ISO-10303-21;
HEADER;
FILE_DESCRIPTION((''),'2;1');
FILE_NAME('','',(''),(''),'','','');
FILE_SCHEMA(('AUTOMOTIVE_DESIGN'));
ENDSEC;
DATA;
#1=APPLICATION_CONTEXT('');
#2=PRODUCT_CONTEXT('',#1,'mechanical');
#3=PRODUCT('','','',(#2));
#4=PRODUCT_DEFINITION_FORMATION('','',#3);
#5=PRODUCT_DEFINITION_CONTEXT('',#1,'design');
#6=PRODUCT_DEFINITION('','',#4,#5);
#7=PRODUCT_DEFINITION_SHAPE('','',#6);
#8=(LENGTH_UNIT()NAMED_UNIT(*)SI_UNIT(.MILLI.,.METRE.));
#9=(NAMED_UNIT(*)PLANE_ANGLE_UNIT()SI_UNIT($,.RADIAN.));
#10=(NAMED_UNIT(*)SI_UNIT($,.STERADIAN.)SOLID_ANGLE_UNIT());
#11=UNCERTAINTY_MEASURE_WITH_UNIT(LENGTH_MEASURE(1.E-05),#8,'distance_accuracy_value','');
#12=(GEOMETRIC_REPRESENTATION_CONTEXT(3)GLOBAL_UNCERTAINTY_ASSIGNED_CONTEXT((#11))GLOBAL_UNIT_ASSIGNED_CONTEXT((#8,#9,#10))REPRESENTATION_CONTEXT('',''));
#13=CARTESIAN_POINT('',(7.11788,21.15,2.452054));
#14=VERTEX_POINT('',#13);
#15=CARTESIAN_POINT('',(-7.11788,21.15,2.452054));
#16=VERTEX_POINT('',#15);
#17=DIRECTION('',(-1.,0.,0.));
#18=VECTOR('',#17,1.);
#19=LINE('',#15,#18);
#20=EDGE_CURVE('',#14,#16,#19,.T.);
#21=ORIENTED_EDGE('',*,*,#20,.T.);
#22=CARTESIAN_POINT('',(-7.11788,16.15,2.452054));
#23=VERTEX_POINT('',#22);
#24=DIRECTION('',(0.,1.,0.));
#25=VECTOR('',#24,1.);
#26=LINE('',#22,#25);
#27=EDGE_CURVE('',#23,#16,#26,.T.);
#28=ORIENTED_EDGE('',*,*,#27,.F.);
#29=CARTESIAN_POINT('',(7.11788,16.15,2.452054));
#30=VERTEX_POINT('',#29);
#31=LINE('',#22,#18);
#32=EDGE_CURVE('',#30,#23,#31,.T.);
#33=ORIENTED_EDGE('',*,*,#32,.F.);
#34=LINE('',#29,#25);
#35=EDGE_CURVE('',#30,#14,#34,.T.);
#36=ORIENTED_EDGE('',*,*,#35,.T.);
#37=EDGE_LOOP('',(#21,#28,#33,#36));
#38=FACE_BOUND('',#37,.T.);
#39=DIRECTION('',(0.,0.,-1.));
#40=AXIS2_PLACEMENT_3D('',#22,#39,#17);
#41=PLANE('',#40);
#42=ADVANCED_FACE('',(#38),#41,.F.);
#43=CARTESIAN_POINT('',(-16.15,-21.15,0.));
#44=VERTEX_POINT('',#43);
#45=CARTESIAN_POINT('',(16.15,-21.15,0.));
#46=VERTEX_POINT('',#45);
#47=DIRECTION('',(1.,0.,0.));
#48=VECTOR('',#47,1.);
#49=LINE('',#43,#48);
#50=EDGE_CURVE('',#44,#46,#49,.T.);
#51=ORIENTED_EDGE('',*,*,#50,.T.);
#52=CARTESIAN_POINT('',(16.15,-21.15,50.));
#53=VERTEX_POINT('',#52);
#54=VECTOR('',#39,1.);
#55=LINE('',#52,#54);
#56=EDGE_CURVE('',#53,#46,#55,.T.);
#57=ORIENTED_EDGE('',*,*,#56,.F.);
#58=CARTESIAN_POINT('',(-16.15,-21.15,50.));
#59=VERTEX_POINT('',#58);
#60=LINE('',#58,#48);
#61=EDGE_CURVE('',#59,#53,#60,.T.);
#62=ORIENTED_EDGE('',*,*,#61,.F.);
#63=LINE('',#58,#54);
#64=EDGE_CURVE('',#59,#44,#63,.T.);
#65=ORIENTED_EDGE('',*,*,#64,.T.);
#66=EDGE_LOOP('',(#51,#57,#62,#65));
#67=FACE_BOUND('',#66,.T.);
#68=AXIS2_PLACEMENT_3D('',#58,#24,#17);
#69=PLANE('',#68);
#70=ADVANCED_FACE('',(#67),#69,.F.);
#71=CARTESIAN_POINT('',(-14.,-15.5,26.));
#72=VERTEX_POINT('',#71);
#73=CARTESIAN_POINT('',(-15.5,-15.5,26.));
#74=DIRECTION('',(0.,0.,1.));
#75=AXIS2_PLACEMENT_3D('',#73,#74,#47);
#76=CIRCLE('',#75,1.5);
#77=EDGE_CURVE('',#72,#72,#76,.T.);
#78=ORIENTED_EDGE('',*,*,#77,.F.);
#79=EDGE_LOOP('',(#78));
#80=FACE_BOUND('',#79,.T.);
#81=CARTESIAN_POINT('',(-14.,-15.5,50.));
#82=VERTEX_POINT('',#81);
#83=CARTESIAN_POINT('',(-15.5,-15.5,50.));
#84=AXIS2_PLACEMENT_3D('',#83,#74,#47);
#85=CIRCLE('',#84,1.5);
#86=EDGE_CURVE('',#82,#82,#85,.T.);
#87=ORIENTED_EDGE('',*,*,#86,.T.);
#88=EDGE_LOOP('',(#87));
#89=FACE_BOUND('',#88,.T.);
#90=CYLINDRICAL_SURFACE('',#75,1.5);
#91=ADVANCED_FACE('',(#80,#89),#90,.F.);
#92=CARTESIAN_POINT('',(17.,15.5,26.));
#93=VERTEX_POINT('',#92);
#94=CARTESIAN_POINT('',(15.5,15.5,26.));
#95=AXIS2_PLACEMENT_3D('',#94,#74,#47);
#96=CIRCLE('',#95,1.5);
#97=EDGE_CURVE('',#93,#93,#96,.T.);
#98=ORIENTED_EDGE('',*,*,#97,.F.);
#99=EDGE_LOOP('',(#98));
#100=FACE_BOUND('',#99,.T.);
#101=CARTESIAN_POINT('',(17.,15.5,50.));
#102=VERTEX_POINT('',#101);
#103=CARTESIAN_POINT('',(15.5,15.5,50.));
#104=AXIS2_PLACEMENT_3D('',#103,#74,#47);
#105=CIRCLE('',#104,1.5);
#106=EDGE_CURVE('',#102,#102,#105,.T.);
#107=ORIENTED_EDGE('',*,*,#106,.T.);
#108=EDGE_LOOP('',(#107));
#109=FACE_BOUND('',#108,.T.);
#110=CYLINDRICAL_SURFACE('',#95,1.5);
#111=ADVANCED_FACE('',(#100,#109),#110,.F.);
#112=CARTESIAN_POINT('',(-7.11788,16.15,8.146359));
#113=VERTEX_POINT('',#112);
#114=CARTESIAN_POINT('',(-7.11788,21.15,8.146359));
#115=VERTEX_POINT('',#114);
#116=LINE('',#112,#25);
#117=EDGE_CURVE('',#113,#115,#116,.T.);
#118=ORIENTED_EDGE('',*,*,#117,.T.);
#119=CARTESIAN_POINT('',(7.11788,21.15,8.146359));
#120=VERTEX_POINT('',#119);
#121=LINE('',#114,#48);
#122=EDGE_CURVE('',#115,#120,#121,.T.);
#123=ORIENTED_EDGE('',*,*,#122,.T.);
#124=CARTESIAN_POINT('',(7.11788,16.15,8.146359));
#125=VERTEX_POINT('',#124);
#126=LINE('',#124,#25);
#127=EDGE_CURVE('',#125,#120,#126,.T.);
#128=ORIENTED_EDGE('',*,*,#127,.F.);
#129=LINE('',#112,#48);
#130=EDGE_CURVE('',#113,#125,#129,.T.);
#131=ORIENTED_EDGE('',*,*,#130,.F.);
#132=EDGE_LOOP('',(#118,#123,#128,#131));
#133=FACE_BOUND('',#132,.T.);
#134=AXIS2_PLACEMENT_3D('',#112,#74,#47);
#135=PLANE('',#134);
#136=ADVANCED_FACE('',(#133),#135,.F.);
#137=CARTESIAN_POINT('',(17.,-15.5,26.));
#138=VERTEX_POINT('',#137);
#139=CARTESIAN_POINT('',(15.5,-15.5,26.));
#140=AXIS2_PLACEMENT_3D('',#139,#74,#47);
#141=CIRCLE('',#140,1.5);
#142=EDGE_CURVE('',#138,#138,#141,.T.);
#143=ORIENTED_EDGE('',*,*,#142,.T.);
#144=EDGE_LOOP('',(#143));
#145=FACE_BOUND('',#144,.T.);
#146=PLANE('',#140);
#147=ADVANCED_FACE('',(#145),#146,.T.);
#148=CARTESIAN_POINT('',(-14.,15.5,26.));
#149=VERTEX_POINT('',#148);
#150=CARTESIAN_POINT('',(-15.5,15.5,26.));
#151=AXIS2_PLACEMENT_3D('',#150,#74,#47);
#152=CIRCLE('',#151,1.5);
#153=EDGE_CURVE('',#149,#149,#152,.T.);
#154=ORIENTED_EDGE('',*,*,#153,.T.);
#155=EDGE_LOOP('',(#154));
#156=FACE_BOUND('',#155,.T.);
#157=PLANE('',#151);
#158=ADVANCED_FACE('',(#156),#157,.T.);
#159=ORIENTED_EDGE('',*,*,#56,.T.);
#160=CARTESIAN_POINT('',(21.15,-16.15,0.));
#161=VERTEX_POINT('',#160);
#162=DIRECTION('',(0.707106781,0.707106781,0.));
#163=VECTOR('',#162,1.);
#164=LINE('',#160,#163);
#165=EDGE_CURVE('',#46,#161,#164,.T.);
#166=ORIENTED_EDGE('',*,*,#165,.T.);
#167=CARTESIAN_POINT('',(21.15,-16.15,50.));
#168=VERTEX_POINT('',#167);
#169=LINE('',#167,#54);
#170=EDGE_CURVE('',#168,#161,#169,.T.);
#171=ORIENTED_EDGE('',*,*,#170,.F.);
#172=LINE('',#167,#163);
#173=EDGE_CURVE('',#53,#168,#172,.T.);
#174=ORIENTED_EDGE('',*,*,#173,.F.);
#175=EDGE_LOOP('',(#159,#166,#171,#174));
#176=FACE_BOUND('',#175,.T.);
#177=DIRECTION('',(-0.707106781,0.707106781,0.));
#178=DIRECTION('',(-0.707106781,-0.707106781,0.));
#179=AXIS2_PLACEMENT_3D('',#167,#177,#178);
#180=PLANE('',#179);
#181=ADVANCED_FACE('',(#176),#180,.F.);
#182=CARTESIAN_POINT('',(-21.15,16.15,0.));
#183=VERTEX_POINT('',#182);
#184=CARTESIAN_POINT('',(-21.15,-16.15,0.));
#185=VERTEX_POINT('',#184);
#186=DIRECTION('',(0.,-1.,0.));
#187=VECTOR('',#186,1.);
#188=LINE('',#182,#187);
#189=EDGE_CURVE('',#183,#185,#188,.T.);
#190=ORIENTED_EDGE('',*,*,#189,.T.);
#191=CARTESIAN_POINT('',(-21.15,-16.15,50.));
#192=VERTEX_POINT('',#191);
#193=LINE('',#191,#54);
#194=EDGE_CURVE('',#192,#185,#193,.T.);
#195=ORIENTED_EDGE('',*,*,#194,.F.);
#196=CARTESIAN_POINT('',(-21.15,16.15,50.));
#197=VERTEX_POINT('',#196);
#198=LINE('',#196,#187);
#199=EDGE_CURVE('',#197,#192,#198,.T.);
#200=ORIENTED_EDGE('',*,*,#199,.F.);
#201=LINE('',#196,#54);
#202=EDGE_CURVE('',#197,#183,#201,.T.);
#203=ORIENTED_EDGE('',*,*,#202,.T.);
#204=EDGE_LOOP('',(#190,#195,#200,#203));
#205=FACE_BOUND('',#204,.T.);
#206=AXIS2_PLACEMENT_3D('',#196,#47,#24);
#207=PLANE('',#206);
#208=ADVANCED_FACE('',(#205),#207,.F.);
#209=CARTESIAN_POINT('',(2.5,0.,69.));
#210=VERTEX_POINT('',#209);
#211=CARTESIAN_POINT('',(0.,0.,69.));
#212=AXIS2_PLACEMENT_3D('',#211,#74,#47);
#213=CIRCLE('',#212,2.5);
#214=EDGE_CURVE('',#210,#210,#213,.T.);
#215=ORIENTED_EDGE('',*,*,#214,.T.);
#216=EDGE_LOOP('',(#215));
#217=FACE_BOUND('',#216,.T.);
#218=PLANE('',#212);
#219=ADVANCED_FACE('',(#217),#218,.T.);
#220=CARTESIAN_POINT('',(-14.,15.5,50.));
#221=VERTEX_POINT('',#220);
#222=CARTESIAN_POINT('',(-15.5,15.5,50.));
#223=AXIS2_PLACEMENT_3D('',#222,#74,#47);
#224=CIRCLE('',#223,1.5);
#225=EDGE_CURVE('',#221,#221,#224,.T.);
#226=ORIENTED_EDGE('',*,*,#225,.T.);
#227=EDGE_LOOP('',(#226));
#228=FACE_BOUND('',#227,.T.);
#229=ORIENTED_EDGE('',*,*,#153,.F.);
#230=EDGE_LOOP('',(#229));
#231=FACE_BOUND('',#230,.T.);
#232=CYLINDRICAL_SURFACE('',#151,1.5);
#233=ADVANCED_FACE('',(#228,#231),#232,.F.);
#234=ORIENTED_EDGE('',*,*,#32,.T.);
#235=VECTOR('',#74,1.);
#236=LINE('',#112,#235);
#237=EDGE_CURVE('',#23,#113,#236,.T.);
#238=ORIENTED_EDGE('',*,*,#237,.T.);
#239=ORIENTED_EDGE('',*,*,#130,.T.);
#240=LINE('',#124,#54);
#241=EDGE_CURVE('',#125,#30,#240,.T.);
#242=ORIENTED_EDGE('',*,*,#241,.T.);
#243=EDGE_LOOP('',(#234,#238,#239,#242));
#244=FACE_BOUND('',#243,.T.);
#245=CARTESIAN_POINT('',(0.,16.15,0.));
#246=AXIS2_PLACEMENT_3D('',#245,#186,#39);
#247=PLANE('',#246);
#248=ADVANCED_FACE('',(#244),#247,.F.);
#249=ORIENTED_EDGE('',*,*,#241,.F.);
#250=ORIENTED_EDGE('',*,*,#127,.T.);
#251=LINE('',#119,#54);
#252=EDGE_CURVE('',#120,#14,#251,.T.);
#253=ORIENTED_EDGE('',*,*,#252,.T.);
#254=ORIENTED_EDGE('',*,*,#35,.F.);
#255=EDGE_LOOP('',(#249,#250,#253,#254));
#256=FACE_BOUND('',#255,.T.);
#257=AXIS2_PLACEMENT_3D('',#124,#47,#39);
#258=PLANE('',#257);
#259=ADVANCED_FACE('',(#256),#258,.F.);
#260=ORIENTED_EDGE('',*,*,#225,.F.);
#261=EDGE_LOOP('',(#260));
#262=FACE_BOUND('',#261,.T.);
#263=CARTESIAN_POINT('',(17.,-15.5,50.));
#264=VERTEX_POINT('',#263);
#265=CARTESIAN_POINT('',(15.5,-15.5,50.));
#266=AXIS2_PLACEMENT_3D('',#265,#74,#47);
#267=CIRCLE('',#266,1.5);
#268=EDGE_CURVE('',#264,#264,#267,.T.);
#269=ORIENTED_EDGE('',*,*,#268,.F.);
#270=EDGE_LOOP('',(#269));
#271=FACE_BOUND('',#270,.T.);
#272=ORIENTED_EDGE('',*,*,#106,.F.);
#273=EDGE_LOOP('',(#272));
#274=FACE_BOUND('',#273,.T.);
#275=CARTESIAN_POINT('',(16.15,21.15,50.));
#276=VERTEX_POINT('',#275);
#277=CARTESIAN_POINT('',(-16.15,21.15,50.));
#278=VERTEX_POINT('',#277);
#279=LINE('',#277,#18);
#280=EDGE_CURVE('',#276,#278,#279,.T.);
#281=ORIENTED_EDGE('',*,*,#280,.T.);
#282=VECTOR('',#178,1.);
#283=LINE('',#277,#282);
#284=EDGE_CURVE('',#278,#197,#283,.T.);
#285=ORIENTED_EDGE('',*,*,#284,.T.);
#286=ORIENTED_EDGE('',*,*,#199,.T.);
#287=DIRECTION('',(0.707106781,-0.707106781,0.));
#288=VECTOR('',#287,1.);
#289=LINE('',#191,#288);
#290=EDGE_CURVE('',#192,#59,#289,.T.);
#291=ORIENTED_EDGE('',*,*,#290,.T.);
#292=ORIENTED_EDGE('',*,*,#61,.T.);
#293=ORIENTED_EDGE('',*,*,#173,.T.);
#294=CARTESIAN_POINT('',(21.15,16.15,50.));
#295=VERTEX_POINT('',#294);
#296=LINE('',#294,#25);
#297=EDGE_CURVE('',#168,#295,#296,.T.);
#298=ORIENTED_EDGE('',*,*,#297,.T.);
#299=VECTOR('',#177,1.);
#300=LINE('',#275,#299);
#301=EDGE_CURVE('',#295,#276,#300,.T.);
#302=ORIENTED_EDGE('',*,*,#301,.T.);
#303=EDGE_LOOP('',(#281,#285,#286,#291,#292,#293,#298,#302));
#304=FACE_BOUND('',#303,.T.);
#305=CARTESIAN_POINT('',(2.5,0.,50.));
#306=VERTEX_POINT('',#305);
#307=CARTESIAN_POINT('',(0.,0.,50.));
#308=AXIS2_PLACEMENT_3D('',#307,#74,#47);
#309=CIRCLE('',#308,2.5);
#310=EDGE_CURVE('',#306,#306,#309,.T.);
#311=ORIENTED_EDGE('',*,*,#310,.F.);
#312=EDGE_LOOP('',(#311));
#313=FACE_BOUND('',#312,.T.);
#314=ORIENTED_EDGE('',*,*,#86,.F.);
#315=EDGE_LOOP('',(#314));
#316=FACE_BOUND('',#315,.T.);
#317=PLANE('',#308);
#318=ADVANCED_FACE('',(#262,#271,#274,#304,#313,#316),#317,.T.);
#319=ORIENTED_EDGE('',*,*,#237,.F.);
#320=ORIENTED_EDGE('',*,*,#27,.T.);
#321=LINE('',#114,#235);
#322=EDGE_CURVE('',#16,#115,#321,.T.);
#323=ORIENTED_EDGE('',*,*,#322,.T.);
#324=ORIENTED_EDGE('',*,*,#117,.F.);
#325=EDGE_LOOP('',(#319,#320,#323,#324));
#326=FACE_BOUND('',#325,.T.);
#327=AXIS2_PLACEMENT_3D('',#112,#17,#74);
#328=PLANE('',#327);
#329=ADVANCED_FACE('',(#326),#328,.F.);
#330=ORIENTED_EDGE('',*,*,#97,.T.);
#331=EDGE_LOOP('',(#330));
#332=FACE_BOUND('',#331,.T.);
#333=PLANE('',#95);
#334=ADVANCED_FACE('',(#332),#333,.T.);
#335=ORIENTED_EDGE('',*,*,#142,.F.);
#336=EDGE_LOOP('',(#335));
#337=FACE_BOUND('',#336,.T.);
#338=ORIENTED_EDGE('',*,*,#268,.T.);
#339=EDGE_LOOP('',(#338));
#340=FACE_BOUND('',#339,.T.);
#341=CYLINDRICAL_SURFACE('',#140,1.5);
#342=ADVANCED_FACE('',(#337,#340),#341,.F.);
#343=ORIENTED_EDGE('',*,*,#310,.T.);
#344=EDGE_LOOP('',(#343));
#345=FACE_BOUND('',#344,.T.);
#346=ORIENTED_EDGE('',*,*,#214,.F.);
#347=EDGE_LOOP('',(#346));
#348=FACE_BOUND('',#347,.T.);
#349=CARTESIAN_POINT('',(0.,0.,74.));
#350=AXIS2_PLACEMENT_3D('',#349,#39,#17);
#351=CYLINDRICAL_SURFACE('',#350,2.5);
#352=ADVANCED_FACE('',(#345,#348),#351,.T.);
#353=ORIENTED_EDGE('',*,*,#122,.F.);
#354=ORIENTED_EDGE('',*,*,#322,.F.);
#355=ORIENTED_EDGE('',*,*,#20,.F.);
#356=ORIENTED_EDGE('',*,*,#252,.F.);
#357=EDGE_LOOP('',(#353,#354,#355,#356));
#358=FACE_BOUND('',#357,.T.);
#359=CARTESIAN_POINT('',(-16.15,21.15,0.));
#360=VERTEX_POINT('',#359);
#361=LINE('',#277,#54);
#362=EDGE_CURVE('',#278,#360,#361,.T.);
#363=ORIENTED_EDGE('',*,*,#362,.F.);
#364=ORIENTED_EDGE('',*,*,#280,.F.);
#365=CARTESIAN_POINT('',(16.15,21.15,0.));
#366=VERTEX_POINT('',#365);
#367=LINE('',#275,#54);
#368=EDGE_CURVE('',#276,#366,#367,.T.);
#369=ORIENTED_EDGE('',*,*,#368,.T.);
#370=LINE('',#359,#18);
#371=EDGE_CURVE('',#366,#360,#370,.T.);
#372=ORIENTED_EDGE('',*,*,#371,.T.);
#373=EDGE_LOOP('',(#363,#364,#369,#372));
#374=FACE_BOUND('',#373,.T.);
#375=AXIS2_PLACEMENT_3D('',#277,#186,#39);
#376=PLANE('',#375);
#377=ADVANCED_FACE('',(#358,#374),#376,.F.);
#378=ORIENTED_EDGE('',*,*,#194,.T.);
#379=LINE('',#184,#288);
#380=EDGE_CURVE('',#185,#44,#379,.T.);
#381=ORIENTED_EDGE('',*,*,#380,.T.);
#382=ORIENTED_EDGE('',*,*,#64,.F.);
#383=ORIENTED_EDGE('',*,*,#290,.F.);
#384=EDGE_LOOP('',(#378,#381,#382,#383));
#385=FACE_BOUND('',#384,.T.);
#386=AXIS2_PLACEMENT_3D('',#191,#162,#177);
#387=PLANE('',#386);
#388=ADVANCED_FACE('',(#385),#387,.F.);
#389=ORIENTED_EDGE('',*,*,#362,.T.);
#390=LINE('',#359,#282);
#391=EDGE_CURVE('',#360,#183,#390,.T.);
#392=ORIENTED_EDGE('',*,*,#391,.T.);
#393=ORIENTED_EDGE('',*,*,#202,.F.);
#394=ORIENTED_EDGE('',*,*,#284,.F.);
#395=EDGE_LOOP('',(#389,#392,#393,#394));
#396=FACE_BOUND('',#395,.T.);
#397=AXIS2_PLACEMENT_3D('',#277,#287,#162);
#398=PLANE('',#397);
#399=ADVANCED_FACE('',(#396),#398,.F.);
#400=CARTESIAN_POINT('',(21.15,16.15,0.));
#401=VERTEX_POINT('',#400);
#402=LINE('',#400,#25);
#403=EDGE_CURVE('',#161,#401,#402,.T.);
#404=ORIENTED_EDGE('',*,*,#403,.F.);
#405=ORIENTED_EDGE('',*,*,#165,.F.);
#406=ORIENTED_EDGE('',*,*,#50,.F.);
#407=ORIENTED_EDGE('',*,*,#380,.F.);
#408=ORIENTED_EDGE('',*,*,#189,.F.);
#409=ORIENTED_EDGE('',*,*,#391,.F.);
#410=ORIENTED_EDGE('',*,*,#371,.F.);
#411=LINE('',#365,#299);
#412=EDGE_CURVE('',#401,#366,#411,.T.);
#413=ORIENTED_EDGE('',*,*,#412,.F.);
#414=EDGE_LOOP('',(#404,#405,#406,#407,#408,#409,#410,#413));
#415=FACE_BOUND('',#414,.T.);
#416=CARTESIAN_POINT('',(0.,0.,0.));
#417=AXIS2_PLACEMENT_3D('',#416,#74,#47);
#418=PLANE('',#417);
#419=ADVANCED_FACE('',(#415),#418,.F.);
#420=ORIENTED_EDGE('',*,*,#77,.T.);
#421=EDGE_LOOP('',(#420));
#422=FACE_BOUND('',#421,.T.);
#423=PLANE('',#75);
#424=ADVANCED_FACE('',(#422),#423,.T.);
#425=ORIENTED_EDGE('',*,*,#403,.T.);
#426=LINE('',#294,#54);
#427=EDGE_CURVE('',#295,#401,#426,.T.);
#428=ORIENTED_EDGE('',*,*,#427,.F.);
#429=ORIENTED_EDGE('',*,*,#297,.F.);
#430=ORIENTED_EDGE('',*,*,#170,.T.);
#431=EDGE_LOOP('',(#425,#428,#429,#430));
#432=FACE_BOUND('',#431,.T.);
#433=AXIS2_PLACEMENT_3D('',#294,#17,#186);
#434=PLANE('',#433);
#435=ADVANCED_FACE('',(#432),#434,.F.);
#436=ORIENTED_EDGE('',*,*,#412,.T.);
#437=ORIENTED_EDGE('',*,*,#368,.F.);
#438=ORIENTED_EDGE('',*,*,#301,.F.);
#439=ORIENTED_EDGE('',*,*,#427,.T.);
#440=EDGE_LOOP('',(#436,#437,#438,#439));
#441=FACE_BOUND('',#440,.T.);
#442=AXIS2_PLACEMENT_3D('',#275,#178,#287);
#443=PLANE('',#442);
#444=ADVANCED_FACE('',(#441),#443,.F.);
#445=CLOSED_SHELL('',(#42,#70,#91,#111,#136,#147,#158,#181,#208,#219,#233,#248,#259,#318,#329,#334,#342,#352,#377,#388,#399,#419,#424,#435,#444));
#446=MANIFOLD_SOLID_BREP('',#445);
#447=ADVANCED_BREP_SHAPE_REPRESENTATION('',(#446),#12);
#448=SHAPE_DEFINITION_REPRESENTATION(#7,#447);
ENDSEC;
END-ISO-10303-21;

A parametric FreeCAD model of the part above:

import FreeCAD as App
import Part
import Sketcher
Q = App.Units.Quantity

doc = App.newDocument("Part")
body = doc.addObject("PartDesign::Body", "Body")

# Sketch on XY plane
sketch1 = doc.addObject("Sketcher::SketchObject", "Sketch")
body.addObject(sketch1)
sketch1.AttachmentSupport = (doc.XY_Plane, [""])
sketch1.MapMode = "FlatFace"
sketch1.addGeometry([
    Part.LineSegment(App.Vector(-16, 21, 0), App.Vector(-21, 16, 0)),  # 0
    Part.LineSegment(App.Vector(-21, 16, 0), App.Vector(-21, -16, 0)),  # 1
    Part.LineSegment(App.Vector(-21, -16, 0), App.Vector(-16, -21, 0)),  # 2
    Part.LineSegment(App.Vector(-16, -21, 0), App.Vector(16, -21, 0)),  # 3
    Part.LineSegment(App.Vector(16, -21, 0), App.Vector(21, -16, 0)),  # 4
    Part.LineSegment(App.Vector(21, -16, 0), App.Vector(21, 16, 0)),  # 5
    Part.LineSegment(App.Vector(21, 16, 0), App.Vector(16, 21, 0)),  # 6
    Part.LineSegment(App.Vector(16, 21, 0), App.Vector(-16, 21, 0)),  # 7
], False)
sketch1.addConstraint([
    Sketcher.Constraint("Coincident", 0, 2, 1, 1),
    Sketcher.Constraint("Coincident", 1, 2, 2, 1),
    Sketcher.Constraint("Coincident", 2, 2, 3, 1),
    Sketcher.Constraint("Coincident", 3, 2, 4, 1),
    Sketcher.Constraint("Coincident", 4, 2, 5, 1),
    Sketcher.Constraint("Coincident", 5, 2, 6, 1),
    Sketcher.Constraint("Coincident", 6, 2, 7, 1),
    Sketcher.Constraint("Coincident", 7, 2, 0, 1),
    Sketcher.Constraint("Vertical", 1),
    Sketcher.Constraint("Horizontal", 3),
    Sketcher.Constraint("Vertical", 5),
    Sketcher.Constraint("Horizontal", 7),
    Sketcher.Constraint("Symmetric", 0, 2, 4, 2, -1, 1),
    Sketcher.Constraint("Symmetric", 2, 2, 6, 2, -1, 1),
    Sketcher.Constraint("Perpendicular", 0, 2),
    Sketcher.Constraint("Perpendicular", 2, 4),
    Sketcher.Constraint("Perpendicular", 4, 6),
    Sketcher.Constraint("Horizontal", 1, 2, 4, 2),
    Sketcher.Constraint("Vertical", 3, 2, 6, 2),
    Sketcher.Constraint("Equal", 7, 1),
    Sketcher.Constraint("DistanceX", 3, 1, 3, 2, Q("32.3 mm")),
    Sketcher.Constraint("DistanceX", 1, 2, 2, 2, Q("5 mm")),
])
pad1 = doc.addObject("PartDesign::Pad", "Pad")
body.addObject(pad1)
pad1.Profile = sketch1
pad1.Length = 50

# Sketch on XY plane
sketch2 = doc.addObject("Sketcher::SketchObject", "Sketch001")
body.addObject(sketch2)
sketch2.AttachmentSupport = (doc.XY_Plane, [""])
sketch2.MapMode = "FlatFace"
sketch2.AttachmentOffset = App.Placement(App.Vector(0, 0, 50), App.Rotation())
sketch2.addGeometry(Part.Circle(App.Vector(0, 0, 0), App.Vector(0, 0, 1), 2.5), False)
sketch2.addConstraint([
    Sketcher.Constraint("Coincident", 0, 3, -1, 1),
    Sketcher.Constraint("Diameter", 0, Q("5 mm")),
])
pad2 = doc.addObject("PartDesign::Pad", "Pad001")
body.addObject(pad2)
pad2.Profile = sketch2
pad2.Length = 24

# Sketch on XY plane
sketch3 = doc.addObject("Sketcher::SketchObject", "Sketch002")
body.addObject(sketch3)
sketch3.AttachmentSupport = (doc.XY_Plane, [""])
sketch3.MapMode = "FlatFace"
sketch3.AttachmentOffset = App.Placement(App.Vector(0, 0, 50), App.Rotation())
sketch3.addGeometry([
    Part.Circle(App.Vector(-15.5, 15.5, 0), App.Vector(0, 0, 1), 1.5),
    Part.Circle(App.Vector(-15.5, -15.5, 0), App.Vector(0, 0, 1), 1.5),
    Part.Circle(App.Vector(15.5, -15.5, 0), App.Vector(0, 0, 1), 1.5),
    Part.Circle(App.Vector(15.5, 15.5, 0), App.Vector(0, 0, 1), 1.5),
], False)
sketch3.addConstraint([
    Sketcher.Constraint("Equal", 0, 1),
    Sketcher.Constraint("Equal", 1, 2),
    Sketcher.Constraint("Equal", 2, 3),
    Sketcher.Constraint("Symmetric", 0, 3, 2, 3, -1, 1),
    Sketcher.Constraint("Symmetric", 1, 3, 3, 3, -1, 1),
    Sketcher.Constraint("Symmetric", 1, 3, 2, 3, -2),
    Sketcher.Constraint("Diameter", 0, Q("3 mm")),
    Sketcher.Constraint("DistanceY", 1, 3, 0, 3, Q("31 mm")),
    Sketcher.Constraint("DistanceX", 1, 3, 2, 3, Q("31 mm")),
])
pocket1 = doc.addObject("PartDesign::Pocket", "Pocket")
body.addObject(pocket1)
pocket1.Profile = sketch3
pocket1.Length = 24

# Sketch on XZ plane
sketch4 = doc.addObject("Sketcher::SketchObject", "Sketch003")
body.addObject(sketch4)
sketch4.AttachmentSupport = (doc.XZ_Plane, [""])
sketch4.MapMode = "FlatFace"
sketch4.AttachmentOffset = App.Placement(App.Vector(0, 0, -21.15), App.Rotation())
sketch4.addGeometry([
    Part.LineSegment(App.Vector(-7, 2, 0), App.Vector(-7, 8, 0)),
    Part.LineSegment(App.Vector(-7, 8, 0), App.Vector(7, 8, 0)),
    Part.LineSegment(App.Vector(7, 8, 0), App.Vector(7, 2, 0)),
    Part.LineSegment(App.Vector(7, 2, 0), App.Vector(-7, 2, 0)),
], False)
sketch4.addConstraint([
    Sketcher.Constraint("Coincident", 0, 2, 1, 1),
    Sketcher.Constraint("Coincident", 1, 2, 2, 1),
    Sketcher.Constraint("Coincident", 2, 2, 3, 1),
    Sketcher.Constraint("Coincident", 3, 2, 0, 1),
    Sketcher.Constraint("Vertical", 0),
    Sketcher.Constraint("Horizontal", 1),
    Sketcher.Constraint("Vertical", 2),
    Sketcher.Constraint("Horizontal", 3),
    Sketcher.Constraint("DistanceX", 1, 1, 1, 2, Q("14.235761 mm")),
    Sketcher.Constraint("DistanceY", 0, 1, 0, 2, Q("5.694304 mm")),
    Sketcher.Constraint("DistanceX", 0, 2, -1, 1, Q("7.11788 mm")),
    Sketcher.Constraint("DistanceY", -1, 1, 0, 2, Q("8.146359 mm")),
])
pocket2 = doc.addObject("PartDesign::Pocket", "Pocket001")
body.addObject(pocket2)
pocket2.Profile = sketch4
pocket2.Length = 5
pocket2.Reversed = True

# Sketch on XY plane
sketch5 = doc.addObject("Sketcher::SketchObject", "Sketch004")
body.addObject(sketch5)
sketch5.AttachmentSupport = (doc.XY_Plane, [""])
sketch5.MapMode = "FlatFace"
sketch5.AttachmentOffset = App.Placement(App.Vector(0, 0, 74), App.Rotation())
sketch5.addGeometry(Part.Circle(App.Vector(0, 0, 0), App.Vector(0, 0, 1), 2.5), False)
sketch5.addConstraint([
    Sketcher.Constraint("Coincident", 0, 3, -1, 1),
    Sketcher.Constraint("Diameter", 0, Q("5 mm")),
])
pocket3 = doc.addObject("PartDesign::Pocket", "Pocket002")
body.addObject(pocket3)
pocket3.Profile = sketch5
pocket3.Length = 5

doc.recompute()
